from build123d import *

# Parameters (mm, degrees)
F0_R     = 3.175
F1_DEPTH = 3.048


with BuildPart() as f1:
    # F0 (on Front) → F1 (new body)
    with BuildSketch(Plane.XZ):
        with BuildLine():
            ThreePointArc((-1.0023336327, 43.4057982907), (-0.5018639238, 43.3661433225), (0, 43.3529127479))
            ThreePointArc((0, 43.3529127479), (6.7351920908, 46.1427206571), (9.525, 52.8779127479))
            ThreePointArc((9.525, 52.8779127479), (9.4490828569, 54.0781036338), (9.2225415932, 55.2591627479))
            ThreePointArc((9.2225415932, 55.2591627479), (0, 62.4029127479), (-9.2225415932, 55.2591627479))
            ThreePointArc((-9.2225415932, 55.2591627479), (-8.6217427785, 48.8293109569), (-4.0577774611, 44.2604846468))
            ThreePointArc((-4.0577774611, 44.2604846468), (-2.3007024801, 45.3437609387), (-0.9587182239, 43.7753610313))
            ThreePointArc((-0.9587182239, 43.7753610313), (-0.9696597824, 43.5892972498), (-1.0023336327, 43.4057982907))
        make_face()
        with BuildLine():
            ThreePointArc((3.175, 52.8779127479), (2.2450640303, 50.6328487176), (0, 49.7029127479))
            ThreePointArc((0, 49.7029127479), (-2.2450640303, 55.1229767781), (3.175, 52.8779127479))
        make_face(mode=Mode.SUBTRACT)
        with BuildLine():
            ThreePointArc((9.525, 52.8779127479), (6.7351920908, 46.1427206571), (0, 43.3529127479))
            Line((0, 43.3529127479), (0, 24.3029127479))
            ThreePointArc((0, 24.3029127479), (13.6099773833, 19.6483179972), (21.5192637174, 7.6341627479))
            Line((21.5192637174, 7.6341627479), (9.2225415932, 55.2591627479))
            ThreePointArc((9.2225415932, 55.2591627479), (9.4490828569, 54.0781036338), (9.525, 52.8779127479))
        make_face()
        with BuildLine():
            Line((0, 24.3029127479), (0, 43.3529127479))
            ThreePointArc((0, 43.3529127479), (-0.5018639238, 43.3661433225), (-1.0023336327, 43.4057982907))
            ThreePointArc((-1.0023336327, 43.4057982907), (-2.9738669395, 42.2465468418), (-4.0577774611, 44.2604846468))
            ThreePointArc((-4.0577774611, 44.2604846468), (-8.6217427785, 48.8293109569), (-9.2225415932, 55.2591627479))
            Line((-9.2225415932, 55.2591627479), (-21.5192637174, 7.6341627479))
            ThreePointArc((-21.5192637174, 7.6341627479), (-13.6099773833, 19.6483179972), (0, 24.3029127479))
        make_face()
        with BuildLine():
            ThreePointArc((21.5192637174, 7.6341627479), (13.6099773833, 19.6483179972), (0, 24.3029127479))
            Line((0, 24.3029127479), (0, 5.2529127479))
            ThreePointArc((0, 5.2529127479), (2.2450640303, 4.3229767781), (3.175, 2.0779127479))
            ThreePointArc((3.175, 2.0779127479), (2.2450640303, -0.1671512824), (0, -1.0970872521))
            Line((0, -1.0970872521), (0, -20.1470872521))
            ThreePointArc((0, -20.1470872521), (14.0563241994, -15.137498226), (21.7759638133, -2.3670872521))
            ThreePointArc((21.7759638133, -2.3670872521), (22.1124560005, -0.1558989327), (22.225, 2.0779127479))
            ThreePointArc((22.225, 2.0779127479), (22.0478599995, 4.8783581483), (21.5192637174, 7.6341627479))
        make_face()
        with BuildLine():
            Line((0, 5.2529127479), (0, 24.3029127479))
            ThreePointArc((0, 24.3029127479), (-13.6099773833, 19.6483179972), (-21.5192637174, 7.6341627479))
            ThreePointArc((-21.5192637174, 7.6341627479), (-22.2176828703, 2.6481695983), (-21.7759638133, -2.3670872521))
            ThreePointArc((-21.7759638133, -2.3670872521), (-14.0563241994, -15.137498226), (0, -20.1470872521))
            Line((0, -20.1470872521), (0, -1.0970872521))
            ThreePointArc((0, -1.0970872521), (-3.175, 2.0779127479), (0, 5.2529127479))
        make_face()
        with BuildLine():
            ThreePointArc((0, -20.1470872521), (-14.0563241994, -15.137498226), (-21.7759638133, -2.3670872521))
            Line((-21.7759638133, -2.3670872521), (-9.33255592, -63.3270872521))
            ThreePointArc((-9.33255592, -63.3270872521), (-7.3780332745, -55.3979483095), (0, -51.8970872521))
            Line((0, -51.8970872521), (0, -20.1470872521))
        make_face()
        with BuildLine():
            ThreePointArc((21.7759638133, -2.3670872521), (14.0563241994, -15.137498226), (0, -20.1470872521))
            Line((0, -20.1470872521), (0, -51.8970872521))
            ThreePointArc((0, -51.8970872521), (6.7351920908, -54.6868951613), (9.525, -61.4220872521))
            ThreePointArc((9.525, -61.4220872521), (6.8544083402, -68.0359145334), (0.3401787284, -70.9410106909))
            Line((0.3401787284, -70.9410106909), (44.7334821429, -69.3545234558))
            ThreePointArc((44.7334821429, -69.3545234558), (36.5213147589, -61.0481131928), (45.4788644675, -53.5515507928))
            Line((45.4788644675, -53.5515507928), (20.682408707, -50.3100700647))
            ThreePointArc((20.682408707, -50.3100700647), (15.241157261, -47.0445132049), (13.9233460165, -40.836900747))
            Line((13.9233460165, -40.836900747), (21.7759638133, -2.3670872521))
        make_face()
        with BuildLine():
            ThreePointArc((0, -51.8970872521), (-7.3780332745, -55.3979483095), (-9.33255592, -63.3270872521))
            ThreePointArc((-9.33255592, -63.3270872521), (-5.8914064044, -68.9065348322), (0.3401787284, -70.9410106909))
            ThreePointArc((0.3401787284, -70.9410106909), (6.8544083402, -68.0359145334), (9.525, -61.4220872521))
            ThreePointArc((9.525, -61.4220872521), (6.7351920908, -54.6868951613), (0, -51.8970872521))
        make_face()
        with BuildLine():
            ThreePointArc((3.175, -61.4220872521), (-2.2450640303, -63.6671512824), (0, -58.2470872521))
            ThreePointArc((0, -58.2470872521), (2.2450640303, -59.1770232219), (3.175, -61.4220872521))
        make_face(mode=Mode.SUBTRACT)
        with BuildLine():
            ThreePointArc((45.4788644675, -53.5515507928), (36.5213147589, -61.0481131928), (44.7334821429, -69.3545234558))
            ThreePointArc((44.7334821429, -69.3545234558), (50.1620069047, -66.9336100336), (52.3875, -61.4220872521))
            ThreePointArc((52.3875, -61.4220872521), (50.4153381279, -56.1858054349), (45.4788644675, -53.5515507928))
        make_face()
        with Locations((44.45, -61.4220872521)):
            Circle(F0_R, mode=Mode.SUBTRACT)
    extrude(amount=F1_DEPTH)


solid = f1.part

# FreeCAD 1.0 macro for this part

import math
import FreeCAD as App
import Part
import Sketcher
Q = App.Units.Quantity

doc = App.newDocument("Part")
body = doc.addObject("PartDesign::Body", "Body")

sketch1 = doc.addObject("Sketcher::SketchObject", "Sketch")
body.addObject(sketch1)
sketch1.AttachmentSupport = (doc.XZ_Plane, [""])
sketch1.MapMode = "FlatFace"
sketch1.addGeometry(Part.LineSegment(App.Vector(21.52, 7.63, 0), App.Vector(9.22, 55.26, 0)), False)
sketch1.addGeometry(Part.ArcOfCircle(Part.Circle(App.Vector(0, 52.88, 0), App.Vector(0, 0, 1), 9.53), math.radians(14), math.radians(166)), False)
sketch1.addGeometry(Part.LineSegment(App.Vector(-9.22, 55.26, 0), App.Vector(-21.52, 7.63, 0)), False)
sketch1.addGeometry(Part.ArcOfCircle(Part.Circle(App.Vector(0, 2.08, 0), App.Vector(0, 0, 1), 22.22), math.radians(166), math.radians(192)), False)
sketch1.addGeometry(Part.LineSegment(App.Vector(-21.78, -2.37, 0), App.Vector(-9.33, -63.33, 0)), False)
sketch1.addGeometry(Part.ArcOfCircle(Part.Circle(App.Vector(0, -61.42, 0), App.Vector(0, 0, 1), 9.53), math.radians(-168), math.radians(-88)), False)
sketch1.addGeometry(Part.LineSegment(App.Vector(0.34, -70.94, 0), App.Vector(44.73, -69.35, 0)), False)
sketch1.addGeometry(Part.ArcOfCircle(Part.Circle(App.Vector(44.45, -61.42, 0), App.Vector(0, 0, 1), 7.94), math.radians(-88), math.radians(0)), False)
sketch1.addGeometry(Part.ArcOfCircle(Part.Circle(App.Vector(44.45, -61.42, 0), App.Vector(0, 0, 1), 7.94), math.radians(0), math.radians(83)), False)
sketch1.addGeometry(Part.LineSegment(App.Vector(45.48, -53.55, 0), App.Vector(20.68, -50.31, 0)), False)
sketch1.addGeometry(Part.ArcOfCircle(Part.Circle(App.Vector(21.71, -42.43, 0), App.Vector(0, 0, 1), 7.95), math.radians(168), math.radians(263)), False)
sketch1.addGeometry(Part.LineSegment(App.Vector(13.92, -40.84, 0), App.Vector(21.78, -2.37, 0)), False)
sketch1.addGeometry(Part.ArcOfCircle(Part.Circle(App.Vector(0, 2.08, 0), App.Vector(0, 0, 1), 22.23), math.radians(-11.54), math.radians(0)), False)
sketch1.addGeometry(Part.ArcOfCircle(Part.Circle(App.Vector(0, 2.08, 0), App.Vector(0, 0, 1), 22.23), math.radians(0), math.radians(14.48)), False)
sketch1.addGeometry(Part.ArcOfCircle(Part.Circle(App.Vector(0, -61.42, 0), App.Vector(0, 0, 1), 3.17), math.radians(0), math.radians(90)), False)
sketch1.addGeometry(Part.ArcOfCircle(Part.Circle(App.Vector(0, -61.42, 0), App.Vector(0, 0, 1), 3.17), math.radians(90), math.radians(360)), False)
sketch1.addGeometry(Part.Circle(App.Vector(44.45, -61.42, 0), App.Vector(0, 0, 1), 3.17), False)
sketch1.addGeometry(Part.ArcOfCircle(Part.Circle(App.Vector(0, 2.08, 0), App.Vector(0, 0, 1), 3.17), math.radians(0), math.radians(90)), False)
sketch1.addGeometry(Part.ArcOfCircle(Part.Circle(App.Vector(0, 2.08, 0), App.Vector(0, 0, 1), 3.17), math.radians(-90), math.radians(0)), False)
sketch1.addGeometry(Part.ArcOfCircle(Part.Circle(App.Vector(0, 2.08, 0), App.Vector(0, 0, 1), 3.17), math.radians(90), math.radians(270)), False)
sketch1.addGeometry(Part.ArcOfCircle(Part.Circle(App.Vector(-2.55, 43.78, 0), App.Vector(0, 0, 1), 1.59), math.radians(-13.46), math.radians(0)), False)
sketch1.addGeometry(Part.ArcOfCircle(Part.Circle(App.Vector(-2.55, 43.78, 0), App.Vector(0, 0, 1), 1.59), math.radians(0), math.radians(347)), False)
sketch1.addGeometry(Part.ArcOfCircle(Part.Circle(App.Vector(0, 52.88, 0), App.Vector(0, 0, 1), 3.17), math.radians(0), math.radians(270)), False)
sketch1.addGeometry(Part.ArcOfCircle(Part.Circle(App.Vector(0, 52.88, 0), App.Vector(0, 0, 1), 3.17), math.radians(-90), math.radians(0)), False)
sketch1.addConstraint(Sketcher.Constraint("Tangent", 0, 2, 1, 1))
sketch1.addConstraint(Sketcher.Constraint("Tangent", 1, 2, 2, 1))
sketch1.addConstraint(Sketcher.Constraint("Tangent", 2, 2, 3, 1))
sketch1.addConstraint(Sketcher.Constraint("Tangent", 3, 2, 4, 1))
sketch1.addConstraint(Sketcher.Constraint("Tangent", 4, 2, 5, 1))
sketch1.addConstraint(Sketcher.Constraint("Tangent", 5, 2, 6, 1))
sketch1.addConstraint(Sketcher.Constraint("Tangent", 6, 2, 7, 1))
sketch1.addConstraint(Sketcher.Constraint("Tangent", 7, 2, 8, 1))
sketch1.addConstraint(Sketcher.Constraint("Tangent", 8, 2, 9, 1))
sketch1.addConstraint(Sketcher.Constraint("Tangent", 9, 2, 10, 2))
sketch1.addConstraint(Sketcher.Constraint("Tangent", 10, 1, 11, 1))
sketch1.addConstraint(Sketcher.Constraint("Tangent", 11, 2, 12, 1))
sketch1.addConstraint(Sketcher.Constraint("Tangent", 12, 2, 13, 1))
sketch1.addConstraint(Sketcher.Constraint("Tangent", 13, 2, 0, 1))
sketch1.addConstraint(Sketcher.Constraint("Tangent", 14, 1, 15, 2))
sketch1.addConstraint(Sketcher.Constraint("Coincident", 15, 1, 14, 2))
sketch1.addConstraint(Sketcher.Constraint("Tangent", 17, 1, 18, 2))
sketch1.addConstraint(Sketcher.Constraint("Tangent", 18, 1, 19, 2))
sketch1.addConstraint(Sketcher.Constraint("Tangent", 19, 1, 17, 2))
sketch1.addConstraint(Sketcher.Constraint("Tangent", 20, 1, 21, 2))
sketch1.addConstraint(Sketcher.Constraint("Coincident", 21, 1, 20, 2))
sketch1.addConstraint(Sketcher.Constraint("Tangent", 22, 1, 23, 2))
sketch1.addConstraint(Sketcher.Constraint("Coincident", 23, 1, 22, 2))
sketch1.addConstraint(Sketcher.Constraint("Coincident", 12, 3, 3, 3))
sketch1.addConstraint(Sketcher.Constraint("Coincident", 14, 3, 5, 3))
sketch1.addConstraint(Sketcher.Constraint("Coincident", 16, 3, 7, 3))
sketch1.addConstraint(Sketcher.Constraint("Coincident", 17, 3, 3, 3))
sketch1.addConstraint(Sketcher.Constraint("Coincident", 22, 3, 1, 3))
sketch1.addConstraint(Sketcher.Constraint("Equal", 1, 5))
sketch1.addConstraint(Sketcher.Constraint("Equal", 7, 8))
sketch1.addConstraint(Sketcher.Constraint("Equal", 3, 12))
sketch1.addConstraint(Sketcher.Constraint("Equal", 12, 13))
sketch1.addConstraint(Sketcher.Constraint("Equal", 15, 16))
sketch1.addConstraint(Sketcher.Constraint("Equal", 16, 17))
sketch1.addConstraint(Sketcher.Constraint("Equal", 19, 22))
sketch1.addConstraint(Sketcher.Constraint("Symmetric", 0, 2, 1, 2, -2))
sketch1.addConstraint(Sketcher.Constraint("PointOnObject", 5, 3, -2))
sketch1.addConstraint(Sketcher.Constraint("PointOnObject", 15, 1, -2))
sketch1.addConstraint(Sketcher.Constraint("PointOnObject", 18, 1, -2))
sketch1.addConstraint(Sketcher.Constraint("PointOnObject", 19, 1, -2))
sketch1.addConstraint(Sketcher.Constraint("PointOnObject", 23, 1, -2))
sketch1.addConstraint(Sketcher.Constraint("Horizontal", 5, 3, 7, 3))
sketch1.addConstraint(Sketcher.Constraint("Horizontal", 16, 3, 7, 2))
sketch1.addConstraint(Sketcher.Constraint("Horizontal", 3, 2, 11, 2))
sketch1.addConstraint(Sketcher.Constraint("Horizontal", 19, 3, 12, 2))
sketch1.addConstraint(Sketcher.Constraint("Horizontal", 7, 2, 14, 1))
sketch1.addConstraint(Sketcher.Constraint("Horizontal", 12, 2, 17, 1))
sketch1.addConstraint(Sketcher.Constraint("Horizontal", 20, 3, 21, 1))
sketch1.addConstraint(Sketcher.Constraint("Horizontal", 23, 3, 22, 1))
sketch1.addConstraint(Sketcher.Constraint("Diameter", 16, Q("0.25 in")))
sketch1.addConstraint(Sketcher.Constraint("Radius", 1, Q("0.375 in")))
sketch1.addConstraint(Sketcher.Constraint("Radius", 3, Q("0.875 in")))
sketch1.addConstraint(Sketcher.Constraint("Radius", 7, Q("0.3125 in")))
sketch1.addConstraint(Sketcher.Constraint("Radius", 10, Q("0.313 in")))
sketch1.addConstraint(Sketcher.Constraint("Radius", 20, Q("0.0625 in")))
sketch1.addConstraint(Sketcher.Constraint("DistanceY", 3, 3, 1, 3, Q("2 in")))
sketch1.addConstraint(Sketcher.Constraint("DistanceY", 5, 3, 3, 3, Q("2.5 in")))
sketch1.addConstraint(Sketcher.Constraint("DistanceX", -1, 1, 7, 3, Q("1.75 in")))
sketch1.addConstraint(Sketcher.Constraint("DistanceY", 10, 1, -1, 1, Q("40.836901 mm")))
sketch1.addConstraint(Sketcher.Constraint("DistanceY", -1, 1, 20, 1, Q("43.405798 mm")))
sketch1.addConstraint(Sketcher.Constraint("DistanceY", 20, 3, 0, 2, Q("11.483802 mm")))
sketch1.addConstraint(Sketcher.Constraint("Distance", 11, Q("39.263089 mm")))
sketch1.addConstraint(Sketcher.Constraint("DistanceX", 20, 3, -1, 1, Q("2.546218 mm")))
pad1 = doc.addObject("PartDesign::Pad", "Pad")
body.addObject(pad1)
pad1.Profile = sketch1
pad1.Length = Q("0.12 in")

doc.recompute()
